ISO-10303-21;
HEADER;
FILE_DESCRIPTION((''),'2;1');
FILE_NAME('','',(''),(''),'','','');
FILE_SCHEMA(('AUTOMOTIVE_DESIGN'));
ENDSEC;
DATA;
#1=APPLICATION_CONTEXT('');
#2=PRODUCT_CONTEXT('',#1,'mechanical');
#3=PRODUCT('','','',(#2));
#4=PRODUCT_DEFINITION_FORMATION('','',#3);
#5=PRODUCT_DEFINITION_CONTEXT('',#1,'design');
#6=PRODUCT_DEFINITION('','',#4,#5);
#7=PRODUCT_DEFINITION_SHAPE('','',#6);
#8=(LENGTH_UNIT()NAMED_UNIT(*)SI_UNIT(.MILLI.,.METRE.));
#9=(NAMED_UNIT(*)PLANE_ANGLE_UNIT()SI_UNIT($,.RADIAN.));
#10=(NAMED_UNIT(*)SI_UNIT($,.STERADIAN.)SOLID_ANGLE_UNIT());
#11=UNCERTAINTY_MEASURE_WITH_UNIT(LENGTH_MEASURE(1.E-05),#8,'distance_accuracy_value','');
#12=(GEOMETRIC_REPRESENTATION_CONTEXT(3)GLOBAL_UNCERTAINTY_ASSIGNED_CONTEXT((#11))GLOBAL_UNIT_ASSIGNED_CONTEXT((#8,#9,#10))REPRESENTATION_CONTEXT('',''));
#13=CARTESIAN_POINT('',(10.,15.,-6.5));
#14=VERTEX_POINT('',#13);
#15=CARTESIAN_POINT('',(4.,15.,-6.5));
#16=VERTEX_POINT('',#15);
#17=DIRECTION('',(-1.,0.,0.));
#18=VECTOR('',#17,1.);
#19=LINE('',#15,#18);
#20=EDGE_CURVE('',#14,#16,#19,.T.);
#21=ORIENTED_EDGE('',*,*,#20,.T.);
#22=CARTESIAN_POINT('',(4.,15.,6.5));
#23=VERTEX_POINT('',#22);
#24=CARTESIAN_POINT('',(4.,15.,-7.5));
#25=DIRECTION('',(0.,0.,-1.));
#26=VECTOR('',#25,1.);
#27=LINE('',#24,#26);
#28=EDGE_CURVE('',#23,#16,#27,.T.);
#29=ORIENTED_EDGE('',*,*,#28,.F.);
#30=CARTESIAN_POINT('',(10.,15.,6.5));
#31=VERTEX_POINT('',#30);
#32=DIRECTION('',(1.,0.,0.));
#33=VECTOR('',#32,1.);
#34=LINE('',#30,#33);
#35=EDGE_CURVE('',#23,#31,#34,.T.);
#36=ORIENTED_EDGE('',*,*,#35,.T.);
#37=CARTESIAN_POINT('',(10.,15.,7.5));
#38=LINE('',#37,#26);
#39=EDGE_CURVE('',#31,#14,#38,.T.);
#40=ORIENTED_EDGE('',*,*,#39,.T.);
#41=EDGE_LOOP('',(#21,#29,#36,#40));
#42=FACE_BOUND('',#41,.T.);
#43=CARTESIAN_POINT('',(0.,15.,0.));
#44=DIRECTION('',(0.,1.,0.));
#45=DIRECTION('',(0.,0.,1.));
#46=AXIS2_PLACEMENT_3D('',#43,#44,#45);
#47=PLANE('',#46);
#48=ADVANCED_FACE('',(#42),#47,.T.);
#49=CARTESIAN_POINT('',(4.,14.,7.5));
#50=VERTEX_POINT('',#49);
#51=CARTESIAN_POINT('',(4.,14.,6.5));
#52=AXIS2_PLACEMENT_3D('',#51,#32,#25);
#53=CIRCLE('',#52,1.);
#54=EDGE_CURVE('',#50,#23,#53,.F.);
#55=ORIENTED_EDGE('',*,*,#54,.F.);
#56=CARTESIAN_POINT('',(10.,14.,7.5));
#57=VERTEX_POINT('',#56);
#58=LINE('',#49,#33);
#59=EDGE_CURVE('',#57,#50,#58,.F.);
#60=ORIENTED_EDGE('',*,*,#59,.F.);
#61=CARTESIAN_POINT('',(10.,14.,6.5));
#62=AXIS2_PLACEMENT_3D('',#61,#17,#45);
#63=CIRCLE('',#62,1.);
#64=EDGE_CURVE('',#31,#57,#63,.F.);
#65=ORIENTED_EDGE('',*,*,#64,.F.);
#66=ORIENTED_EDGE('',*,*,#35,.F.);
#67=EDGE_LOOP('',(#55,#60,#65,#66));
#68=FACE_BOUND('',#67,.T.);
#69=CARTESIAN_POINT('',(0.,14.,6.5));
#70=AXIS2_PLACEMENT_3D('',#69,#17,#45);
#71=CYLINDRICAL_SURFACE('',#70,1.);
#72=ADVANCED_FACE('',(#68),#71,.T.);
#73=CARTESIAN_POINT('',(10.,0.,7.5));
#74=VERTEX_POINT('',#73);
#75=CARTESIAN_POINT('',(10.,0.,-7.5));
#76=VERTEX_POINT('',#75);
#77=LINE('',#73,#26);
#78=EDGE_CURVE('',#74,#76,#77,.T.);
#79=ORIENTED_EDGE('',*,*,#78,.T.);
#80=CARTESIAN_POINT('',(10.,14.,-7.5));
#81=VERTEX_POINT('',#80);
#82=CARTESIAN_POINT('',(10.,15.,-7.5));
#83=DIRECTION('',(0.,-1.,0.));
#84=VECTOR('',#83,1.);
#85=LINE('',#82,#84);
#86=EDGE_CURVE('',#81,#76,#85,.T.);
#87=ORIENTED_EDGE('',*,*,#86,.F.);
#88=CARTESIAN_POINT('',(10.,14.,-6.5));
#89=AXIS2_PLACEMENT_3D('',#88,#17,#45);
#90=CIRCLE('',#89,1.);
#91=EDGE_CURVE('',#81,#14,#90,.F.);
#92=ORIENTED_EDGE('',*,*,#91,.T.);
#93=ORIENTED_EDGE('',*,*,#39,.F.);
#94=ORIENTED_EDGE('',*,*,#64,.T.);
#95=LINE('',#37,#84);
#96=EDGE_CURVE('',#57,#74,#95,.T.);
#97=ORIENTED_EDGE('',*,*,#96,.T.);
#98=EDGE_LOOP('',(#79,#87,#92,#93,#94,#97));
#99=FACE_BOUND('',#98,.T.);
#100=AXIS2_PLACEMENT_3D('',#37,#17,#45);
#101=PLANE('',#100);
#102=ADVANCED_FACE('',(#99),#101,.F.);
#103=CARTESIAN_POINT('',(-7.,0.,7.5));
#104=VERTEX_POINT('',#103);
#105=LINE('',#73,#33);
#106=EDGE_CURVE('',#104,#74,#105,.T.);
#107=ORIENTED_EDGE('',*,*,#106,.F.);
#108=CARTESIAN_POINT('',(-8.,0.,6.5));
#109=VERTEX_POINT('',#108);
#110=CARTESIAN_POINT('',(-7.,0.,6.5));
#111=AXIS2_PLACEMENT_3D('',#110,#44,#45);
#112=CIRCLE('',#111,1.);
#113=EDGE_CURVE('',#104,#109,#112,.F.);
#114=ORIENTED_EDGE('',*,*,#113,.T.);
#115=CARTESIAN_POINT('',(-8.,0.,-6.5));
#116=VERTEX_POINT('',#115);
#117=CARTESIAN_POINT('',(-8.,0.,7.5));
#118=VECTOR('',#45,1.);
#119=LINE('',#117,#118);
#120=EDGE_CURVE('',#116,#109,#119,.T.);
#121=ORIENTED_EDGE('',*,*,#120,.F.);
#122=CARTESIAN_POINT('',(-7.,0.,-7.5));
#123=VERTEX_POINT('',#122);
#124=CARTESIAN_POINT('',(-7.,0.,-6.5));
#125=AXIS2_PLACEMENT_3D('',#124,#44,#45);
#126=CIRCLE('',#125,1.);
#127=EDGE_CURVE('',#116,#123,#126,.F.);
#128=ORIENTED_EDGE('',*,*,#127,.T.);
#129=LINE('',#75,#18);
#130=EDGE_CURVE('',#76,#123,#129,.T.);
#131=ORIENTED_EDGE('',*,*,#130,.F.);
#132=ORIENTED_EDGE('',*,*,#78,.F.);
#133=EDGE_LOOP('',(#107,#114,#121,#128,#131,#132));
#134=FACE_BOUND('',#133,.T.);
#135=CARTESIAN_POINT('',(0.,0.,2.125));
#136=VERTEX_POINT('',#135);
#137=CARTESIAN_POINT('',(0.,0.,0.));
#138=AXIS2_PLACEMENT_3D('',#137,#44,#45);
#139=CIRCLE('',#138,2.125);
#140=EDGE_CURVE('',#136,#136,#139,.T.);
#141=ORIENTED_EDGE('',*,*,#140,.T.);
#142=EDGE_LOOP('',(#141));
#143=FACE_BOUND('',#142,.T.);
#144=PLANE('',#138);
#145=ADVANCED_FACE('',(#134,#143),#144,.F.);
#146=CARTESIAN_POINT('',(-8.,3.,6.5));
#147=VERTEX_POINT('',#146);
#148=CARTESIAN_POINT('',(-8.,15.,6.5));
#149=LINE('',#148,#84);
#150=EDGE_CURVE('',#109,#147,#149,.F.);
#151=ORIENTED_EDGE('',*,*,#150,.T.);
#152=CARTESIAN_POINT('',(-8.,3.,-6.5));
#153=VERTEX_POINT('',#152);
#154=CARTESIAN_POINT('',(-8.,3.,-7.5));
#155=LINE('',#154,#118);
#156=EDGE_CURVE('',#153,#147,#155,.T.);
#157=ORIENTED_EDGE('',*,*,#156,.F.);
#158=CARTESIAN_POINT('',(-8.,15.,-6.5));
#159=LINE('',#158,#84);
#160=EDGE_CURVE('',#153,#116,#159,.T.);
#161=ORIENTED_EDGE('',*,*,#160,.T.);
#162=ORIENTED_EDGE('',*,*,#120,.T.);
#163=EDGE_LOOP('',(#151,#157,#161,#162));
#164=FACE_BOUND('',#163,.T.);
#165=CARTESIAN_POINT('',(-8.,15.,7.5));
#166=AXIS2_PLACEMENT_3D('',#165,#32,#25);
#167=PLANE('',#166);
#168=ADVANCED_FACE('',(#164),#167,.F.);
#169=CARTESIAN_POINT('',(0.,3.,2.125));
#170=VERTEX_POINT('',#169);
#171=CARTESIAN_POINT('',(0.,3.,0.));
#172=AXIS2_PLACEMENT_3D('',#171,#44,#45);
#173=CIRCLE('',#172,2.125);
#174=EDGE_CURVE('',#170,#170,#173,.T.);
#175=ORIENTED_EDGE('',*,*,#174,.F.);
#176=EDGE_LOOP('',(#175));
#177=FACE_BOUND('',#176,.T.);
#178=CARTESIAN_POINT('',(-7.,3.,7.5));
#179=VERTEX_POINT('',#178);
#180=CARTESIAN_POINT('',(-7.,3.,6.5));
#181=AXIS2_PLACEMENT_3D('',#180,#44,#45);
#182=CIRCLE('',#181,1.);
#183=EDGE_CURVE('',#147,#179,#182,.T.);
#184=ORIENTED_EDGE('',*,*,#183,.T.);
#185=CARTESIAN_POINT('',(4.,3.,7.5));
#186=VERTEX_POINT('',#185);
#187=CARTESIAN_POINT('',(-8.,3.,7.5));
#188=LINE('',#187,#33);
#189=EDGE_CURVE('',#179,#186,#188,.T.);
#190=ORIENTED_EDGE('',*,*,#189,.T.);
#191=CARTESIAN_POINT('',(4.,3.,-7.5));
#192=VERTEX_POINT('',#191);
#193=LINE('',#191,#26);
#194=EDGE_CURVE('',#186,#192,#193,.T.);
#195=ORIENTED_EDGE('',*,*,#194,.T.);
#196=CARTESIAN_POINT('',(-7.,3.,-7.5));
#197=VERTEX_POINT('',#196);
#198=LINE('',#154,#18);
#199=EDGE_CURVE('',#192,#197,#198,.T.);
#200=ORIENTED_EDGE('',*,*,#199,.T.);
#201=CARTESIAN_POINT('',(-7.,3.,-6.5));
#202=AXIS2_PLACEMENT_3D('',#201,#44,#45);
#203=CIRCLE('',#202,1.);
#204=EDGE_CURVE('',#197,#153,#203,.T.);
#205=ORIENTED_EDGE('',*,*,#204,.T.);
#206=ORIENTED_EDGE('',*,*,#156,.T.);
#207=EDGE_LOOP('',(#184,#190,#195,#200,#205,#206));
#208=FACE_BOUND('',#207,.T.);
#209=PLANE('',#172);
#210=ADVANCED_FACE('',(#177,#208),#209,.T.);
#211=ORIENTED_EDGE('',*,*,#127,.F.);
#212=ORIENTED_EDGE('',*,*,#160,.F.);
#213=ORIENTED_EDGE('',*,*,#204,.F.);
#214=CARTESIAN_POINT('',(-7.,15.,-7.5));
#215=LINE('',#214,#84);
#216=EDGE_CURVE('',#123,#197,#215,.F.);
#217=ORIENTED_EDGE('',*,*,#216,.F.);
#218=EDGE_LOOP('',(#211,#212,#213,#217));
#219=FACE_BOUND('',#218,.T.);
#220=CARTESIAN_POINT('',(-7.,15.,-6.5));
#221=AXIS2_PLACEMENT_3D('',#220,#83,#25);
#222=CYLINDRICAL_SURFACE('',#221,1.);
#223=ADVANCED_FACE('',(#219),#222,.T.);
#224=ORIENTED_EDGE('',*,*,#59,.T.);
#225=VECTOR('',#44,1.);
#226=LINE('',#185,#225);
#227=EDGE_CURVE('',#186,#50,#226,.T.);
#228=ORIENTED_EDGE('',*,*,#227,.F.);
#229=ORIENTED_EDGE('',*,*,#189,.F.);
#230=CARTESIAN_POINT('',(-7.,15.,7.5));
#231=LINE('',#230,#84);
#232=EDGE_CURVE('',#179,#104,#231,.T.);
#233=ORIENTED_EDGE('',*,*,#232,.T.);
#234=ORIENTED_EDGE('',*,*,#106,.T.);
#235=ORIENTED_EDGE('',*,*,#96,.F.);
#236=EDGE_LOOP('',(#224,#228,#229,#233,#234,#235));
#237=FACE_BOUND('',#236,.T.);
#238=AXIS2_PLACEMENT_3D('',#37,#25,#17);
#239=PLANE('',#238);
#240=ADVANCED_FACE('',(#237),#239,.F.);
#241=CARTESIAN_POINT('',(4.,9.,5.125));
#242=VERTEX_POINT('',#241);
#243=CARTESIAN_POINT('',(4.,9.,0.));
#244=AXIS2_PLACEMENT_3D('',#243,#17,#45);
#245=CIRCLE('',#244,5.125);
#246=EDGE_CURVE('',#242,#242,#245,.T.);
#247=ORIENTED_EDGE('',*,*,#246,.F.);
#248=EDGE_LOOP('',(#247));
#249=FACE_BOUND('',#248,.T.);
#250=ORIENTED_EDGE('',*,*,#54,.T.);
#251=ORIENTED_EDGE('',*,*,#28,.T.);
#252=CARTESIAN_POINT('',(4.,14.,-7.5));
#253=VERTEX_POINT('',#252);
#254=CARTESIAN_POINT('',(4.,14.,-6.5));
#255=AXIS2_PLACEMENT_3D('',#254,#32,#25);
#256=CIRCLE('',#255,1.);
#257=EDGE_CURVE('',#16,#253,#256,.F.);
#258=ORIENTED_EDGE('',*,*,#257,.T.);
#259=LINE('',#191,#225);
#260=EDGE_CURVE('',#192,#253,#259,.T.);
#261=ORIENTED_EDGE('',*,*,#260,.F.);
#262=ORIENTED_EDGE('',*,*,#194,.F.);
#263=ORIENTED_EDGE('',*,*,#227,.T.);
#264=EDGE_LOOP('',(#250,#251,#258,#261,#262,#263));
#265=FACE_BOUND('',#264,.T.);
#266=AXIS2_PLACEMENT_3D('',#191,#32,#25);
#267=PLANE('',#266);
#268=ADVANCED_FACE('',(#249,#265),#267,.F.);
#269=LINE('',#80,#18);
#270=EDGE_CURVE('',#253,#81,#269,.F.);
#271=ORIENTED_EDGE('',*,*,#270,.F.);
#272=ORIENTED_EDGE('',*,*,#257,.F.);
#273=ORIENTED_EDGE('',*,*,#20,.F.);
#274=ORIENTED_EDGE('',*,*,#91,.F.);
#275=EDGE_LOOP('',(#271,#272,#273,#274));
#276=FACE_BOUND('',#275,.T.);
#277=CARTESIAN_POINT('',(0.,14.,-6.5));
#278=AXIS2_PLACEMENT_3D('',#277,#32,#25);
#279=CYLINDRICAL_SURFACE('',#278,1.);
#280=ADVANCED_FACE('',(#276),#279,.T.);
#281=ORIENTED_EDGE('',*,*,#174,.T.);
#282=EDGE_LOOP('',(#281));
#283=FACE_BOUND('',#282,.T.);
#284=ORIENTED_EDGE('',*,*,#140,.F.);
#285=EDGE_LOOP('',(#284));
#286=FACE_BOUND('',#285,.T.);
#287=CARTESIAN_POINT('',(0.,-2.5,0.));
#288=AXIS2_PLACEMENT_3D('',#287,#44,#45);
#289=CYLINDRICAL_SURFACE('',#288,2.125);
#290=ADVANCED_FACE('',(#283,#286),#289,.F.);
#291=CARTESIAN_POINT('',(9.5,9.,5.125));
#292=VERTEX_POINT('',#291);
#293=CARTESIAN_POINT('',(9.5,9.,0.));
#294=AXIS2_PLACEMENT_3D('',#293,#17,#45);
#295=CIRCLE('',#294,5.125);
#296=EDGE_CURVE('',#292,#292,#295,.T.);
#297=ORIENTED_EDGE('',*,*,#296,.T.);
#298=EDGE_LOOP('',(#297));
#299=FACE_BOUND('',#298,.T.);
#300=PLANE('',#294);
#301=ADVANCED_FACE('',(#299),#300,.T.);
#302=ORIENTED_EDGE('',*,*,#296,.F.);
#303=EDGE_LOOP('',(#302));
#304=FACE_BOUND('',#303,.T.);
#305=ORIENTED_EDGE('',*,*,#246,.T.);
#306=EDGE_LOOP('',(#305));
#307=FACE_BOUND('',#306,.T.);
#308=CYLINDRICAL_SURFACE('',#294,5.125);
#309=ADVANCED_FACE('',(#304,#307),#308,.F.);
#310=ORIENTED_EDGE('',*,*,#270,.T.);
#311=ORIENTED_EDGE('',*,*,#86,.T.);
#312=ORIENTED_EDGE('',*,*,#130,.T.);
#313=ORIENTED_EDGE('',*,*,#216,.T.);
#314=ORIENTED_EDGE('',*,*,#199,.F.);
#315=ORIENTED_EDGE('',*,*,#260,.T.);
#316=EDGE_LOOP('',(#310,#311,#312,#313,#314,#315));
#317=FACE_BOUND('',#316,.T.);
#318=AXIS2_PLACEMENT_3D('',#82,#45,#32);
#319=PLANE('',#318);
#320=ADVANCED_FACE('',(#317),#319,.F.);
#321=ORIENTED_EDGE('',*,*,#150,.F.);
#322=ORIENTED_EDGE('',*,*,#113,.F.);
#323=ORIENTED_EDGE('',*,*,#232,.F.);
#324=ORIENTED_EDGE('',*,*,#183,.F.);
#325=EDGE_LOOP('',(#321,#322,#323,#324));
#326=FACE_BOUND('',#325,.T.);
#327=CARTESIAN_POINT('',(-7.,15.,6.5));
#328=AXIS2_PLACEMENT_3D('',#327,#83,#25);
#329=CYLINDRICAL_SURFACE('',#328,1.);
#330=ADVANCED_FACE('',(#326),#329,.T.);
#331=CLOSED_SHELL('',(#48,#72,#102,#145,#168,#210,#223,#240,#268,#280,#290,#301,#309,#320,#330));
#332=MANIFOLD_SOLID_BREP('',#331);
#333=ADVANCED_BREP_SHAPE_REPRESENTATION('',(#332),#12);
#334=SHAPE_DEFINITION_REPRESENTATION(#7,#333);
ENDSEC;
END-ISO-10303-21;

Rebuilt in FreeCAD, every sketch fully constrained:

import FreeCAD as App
import Part
import Sketcher

V = App.Vector


def edges_at(feature, points):
    """Names of the edges that pass closest to the given points."""
    edges = feature.Shape.Edges
    near = lambda p: min(range(len(edges)), key=lambda i: edges[i].distToShape(Part.Vertex(*p))[0])
    return sorted({f"Edge{near(p) + 1}" for p in points})


def add_polygon(sketch, points):
    """Adds a closed chain of lines whose ends are joined by coincident constraints."""
    first, n = sketch.GeometryCount, len(points)
    for a, b in zip(points, points[1:] + points[:1]):
        sketch.addGeometry(Part.LineSegment(App.Vector(*a, 0), App.Vector(*b, 0)), False)
    for i in range(n):
        sketch.addConstraint(Sketcher.Constraint("Coincident", first + i, 2, first + (i + 1) % n, 1))

doc = App.newDocument("Part")
body = doc.addObject("PartDesign::Body", "Body")

sketch1 = doc.addObject("Sketcher::SketchObject", "Sketch")
body.addObject(sketch1)
sketch1.AttachmentSupport = (doc.XZ_Plane, [""])
sketch1.MapMode = "FlatFace"
add_polygon(sketch1, [(-8, -7.5), (-8, 7.5), (10, 7.5), (10, -7.5)])
sketch1.addConstraint(Sketcher.Constraint("Vertical", 0))
sketch1.addConstraint(Sketcher.Constraint("Horizontal", 1))
sketch1.addConstraint(Sketcher.Constraint("Vertical", 2))
sketch1.addConstraint(Sketcher.Constraint("Horizontal", 3))
sketch1.addConstraint(Sketcher.Constraint("DistanceX", 1, 1, 1, 2, 18.0))
sketch1.addConstraint(Sketcher.Constraint("DistanceY", 0, 1, 0, 2, 15.0))
sketch1.addConstraint(Sketcher.Constraint("DistanceX", 0, 2, -1, 1, 8.0))
sketch1.addConstraint(Sketcher.Constraint("DistanceY", -1, 1, 0, 2, 7.5))
pad1 = doc.addObject("PartDesign::Pad", "Pad")
body.addObject(pad1)
pad1.Profile = sketch1
pad1.Length = 15
pad1.Reversed = True

sketch2 = doc.addObject("Sketcher::SketchObject", "Sketch001")
body.addObject(sketch2)
sketch2.AttachmentSupport = (doc.XZ_Plane, [""])
sketch2.MapMode = "FlatFace"
sketch2.AttachmentOffset = App.Placement(V(0, 0, -15), App.Rotation())
add_polygon(sketch2, [(-8, -7.5), (-8, 7.5), (4, 7.5), (4, -7.5)])
sketch2.addConstraint(Sketcher.Constraint("Vertical", 0))
sketch2.addConstraint(Sketcher.Constraint("Horizontal", 1))
sketch2.addConstraint(Sketcher.Constraint("Vertical", 2))
sketch2.addConstraint(Sketcher.Constraint("Horizontal", 3))
sketch2.addConstraint(Sketcher.Constraint("DistanceX", 1, 1, 1, 2, 12.0))
sketch2.addConstraint(Sketcher.Constraint("DistanceY", 0, 1, 0, 2, 15.0))
sketch2.addConstraint(Sketcher.Constraint("DistanceX", 0, 2, -1, 1, 8.0))
sketch2.addConstraint(Sketcher.Constraint("DistanceY", -1, 1, 0, 2, 7.5))
pocket1 = doc.addObject("PartDesign::Pocket", "Pocket")
body.addObject(pocket1)
pocket1.Profile = sketch2
pocket1.Length = 12
pocket1.Reversed = True
doc.recompute()

fillet = doc.addObject("PartDesign::Fillet", "Fillet")
body.addObject(fillet)
fillet.Base = (pocket1, edges_at(pocket1, [
    (7, 15, 7.5),
    (-8, 1.5, -7.5),
    (-8, 1.5, 7.5),
    (7, 15, -7.5),
]))
fillet.Radius = 1

sketch3 = doc.addObject("Sketcher::SketchObject", "Sketch002")
body.addObject(sketch3)
sketch3.AttachmentSupport = (doc.YZ_Plane, [""])
sketch3.MapMode = "FlatFace"
sketch3.AttachmentOffset = App.Placement(V(0, 0, 4), App.Rotation())
sketch3.addGeometry(Part.Circle(V(9, 0, 0), V(0, 0, 1), 5.125), False)
sketch3.addConstraint(Sketcher.Constraint("PointOnObject", 0, 3, -1))
sketch3.addConstraint(Sketcher.Constraint("Diameter", 0, 10.25))
sketch3.addConstraint(Sketcher.Constraint("DistanceX", -1, 1, 0, 3, 9.0))
pocket2 = doc.addObject("PartDesign::Pocket", "Pocket001")
body.addObject(pocket2)
pocket2.Profile = sketch3
pocket2.Length = 5.5
pocket2.Reversed = True

sketch4 = doc.addObject("Sketcher::SketchObject", "Sketch003")
body.addObject(sketch4)
sketch4.AttachmentSupport = (doc.XZ_Plane, [""])
sketch4.MapMode = "FlatFace"
sketch4.AttachmentOffset = App.Placement(V(0, 0, -3), App.Rotation())
sketch4.addGeometry(Part.Circle(V(0, 0, 0), V(0, 0, 1), 2.125), False)
sketch4.addConstraint(Sketcher.Constraint("Coincident", 0, 3, -1, 1))
sketch4.addConstraint(Sketcher.Constraint("Diameter", 0, 4.25))
pocket3 = doc.addObject("PartDesign::Pocket", "Pocket002")
body.addObject(pocket3)
pocket3.Profile = sketch4
pocket3.Length = 5.5
pocket3.Reversed = True

doc.recompute()
